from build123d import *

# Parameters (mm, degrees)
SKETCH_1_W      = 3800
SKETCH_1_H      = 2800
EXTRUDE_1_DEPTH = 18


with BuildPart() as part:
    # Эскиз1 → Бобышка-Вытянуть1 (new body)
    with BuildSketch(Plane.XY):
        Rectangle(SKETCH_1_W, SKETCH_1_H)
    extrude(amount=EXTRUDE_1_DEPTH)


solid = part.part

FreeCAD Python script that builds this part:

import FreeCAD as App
import Part
import Sketcher
from FreeCAD import Vector


def add_polygon(sketch, points):
    """Adds a closed chain of lines whose ends are joined by coincident constraints."""
    first, n = sketch.GeometryCount, len(points)
    for a, b in zip(points, points[1:] + points[:1]):
        sketch.addGeometry(Part.LineSegment(App.Vector(*a, 0), App.Vector(*b, 0)), False)
    for i in range(n):
        sketch.addConstraint(Sketcher.Constraint("Coincident", first + i, 2, first + (i + 1) % n, 1))

doc = App.newDocument("Part")
body = doc.addObject("PartDesign::Body", "Body")

# Sketch on XY plane
sketch1 = body.newObject("Sketcher::SketchObject", "Sketch")
sketch1.AttachmentSupport = (doc.getObject("XY_Plane"), [""])
sketch1.MapMode = "FlatFace"
add_polygon(sketch1, [(-1900, 1400), (-1900, -1400), (1900, -1400), (1900, 1400)])  # lines 0-3
sketch1.addConstraint(Sketcher.Constraint("Vertical", 0))
sketch1.addConstraint(Sketcher.Constraint("Horizontal", 1))
sketch1.addConstraint(Sketcher.Constraint("Vertical", 2))
sketch1.addConstraint(Sketcher.Constraint("Horizontal", 3))
sketch1.addConstraint(Sketcher.Constraint("Symmetric", 0, 2, 2, 2, -1, 1))
sketch1.addConstraint(Sketcher.Constraint("DistanceX", 1, 1, 1, 2, 3800.0))
sketch1.addConstraint(Sketcher.Constraint("DistanceY", 0, 2, 0, 1, 2800.0))
pad1 = body.newObject("PartDesign::Pad", "Pad")
pad1.Profile = sketch1
pad1.Length = 18

doc.recompute()
